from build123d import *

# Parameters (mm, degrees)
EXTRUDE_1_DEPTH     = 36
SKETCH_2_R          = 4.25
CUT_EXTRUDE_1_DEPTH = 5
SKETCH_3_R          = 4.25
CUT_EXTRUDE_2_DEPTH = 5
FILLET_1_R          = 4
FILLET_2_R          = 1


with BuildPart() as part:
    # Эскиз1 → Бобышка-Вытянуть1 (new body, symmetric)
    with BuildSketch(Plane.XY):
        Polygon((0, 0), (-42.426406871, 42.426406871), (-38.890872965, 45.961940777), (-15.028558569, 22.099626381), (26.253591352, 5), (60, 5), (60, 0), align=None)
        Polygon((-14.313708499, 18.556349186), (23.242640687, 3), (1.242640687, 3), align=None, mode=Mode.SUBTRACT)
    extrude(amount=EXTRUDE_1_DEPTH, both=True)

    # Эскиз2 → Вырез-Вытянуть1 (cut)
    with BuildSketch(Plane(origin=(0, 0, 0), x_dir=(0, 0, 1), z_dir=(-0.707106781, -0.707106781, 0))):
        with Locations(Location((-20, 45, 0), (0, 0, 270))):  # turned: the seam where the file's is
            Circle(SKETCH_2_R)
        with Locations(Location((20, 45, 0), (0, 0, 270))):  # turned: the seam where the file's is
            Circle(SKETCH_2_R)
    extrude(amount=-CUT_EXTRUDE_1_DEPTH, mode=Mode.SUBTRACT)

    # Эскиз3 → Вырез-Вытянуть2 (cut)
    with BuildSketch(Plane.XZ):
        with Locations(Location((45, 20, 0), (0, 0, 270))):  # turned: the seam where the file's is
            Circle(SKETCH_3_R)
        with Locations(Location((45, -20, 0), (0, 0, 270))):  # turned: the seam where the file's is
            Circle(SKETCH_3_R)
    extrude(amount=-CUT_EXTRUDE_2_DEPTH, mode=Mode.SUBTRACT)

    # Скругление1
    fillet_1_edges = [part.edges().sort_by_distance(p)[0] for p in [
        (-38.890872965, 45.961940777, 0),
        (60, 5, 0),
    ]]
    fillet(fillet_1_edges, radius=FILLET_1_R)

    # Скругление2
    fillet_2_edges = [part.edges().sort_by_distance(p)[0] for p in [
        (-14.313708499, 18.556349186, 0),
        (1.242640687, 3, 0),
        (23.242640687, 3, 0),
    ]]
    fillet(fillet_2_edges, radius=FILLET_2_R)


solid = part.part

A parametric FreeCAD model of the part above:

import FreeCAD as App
import Part
import Sketcher

V = App.Vector
Q = App.Units.Quantity


def edges_at(feature, points):
    """Names of the edges that pass closest to the given points."""
    edges = feature.Shape.Edges
    near = lambda p: min(range(len(edges)), key=lambda i: edges[i].distToShape(Part.Vertex(*p))[0])
    return sorted({f"Edge{near(p) + 1}" for p in points})


def add_polygon(sketch, points):
    """Adds a closed chain of lines whose ends are joined by coincident constraints."""
    first, n = sketch.GeometryCount, len(points)
    for a, b in zip(points, points[1:] + points[:1]):
        sketch.addGeometry(Part.LineSegment(App.Vector(*a, 0), App.Vector(*b, 0)), False)
    for i in range(n):
        sketch.addConstraint(Sketcher.Constraint("Coincident", first + i, 2, first + (i + 1) % n, 1))

doc = App.newDocument("Part")
body = doc.addObject("PartDesign::Body", "Body")

# Sketch on XY plane
sketch1 = body.newObject("Sketcher::SketchObject", "Sketch")
sketch1.AttachmentSupport = (doc.getObject("XY_Plane"), [""])
sketch1.MapMode = "FlatFace"
add_polygon(sketch1, [(-42, 42), (0, 0), (60, 0), (60, 5), (26, 5), (-15, 22), (-39, 46)])  # lines 0-6
add_polygon(sketch1, [(-14, 19), (23, 3), (1, 3)])  # lines 7-9
sketch1.addConstraint([
    Sketcher.Constraint("Horizontal", 1),
    Sketcher.Constraint("Vertical", 2),
    Sketcher.Constraint("Horizontal", 3),
    Sketcher.Constraint("Horizontal", 8),
    Sketcher.Constraint("Coincident", 0, 2, -1, 1),
    Sketcher.Constraint("Parallel", 0, 5),
    Sketcher.Constraint("Perpendicular", 5, 6),
    Sketcher.Constraint("Parallel", 4, 7),
    Sketcher.Constraint("Perpendicular", 6, 9),
    Sketcher.Constraint("DistanceX", 1, 1, 1, 2, Q("60 mm")),
    Sketcher.Constraint("DistanceX", 8, 2, 8, 1, Q("22 mm")),
    Sketcher.Constraint("DistanceY", 2, 1, 2, 2, Q("5 mm")),
    Sketcher.Constraint("Angle", 0, Q("-45 deg")),
    Sketcher.Constraint("Distance", 0, Q("60 mm")),
    Sketcher.Constraint("Distance", 6, Q("5 mm")),
    Sketcher.Constraint("Distance", 9, Q("22 mm")),
    Sketcher.Constraint("DistanceY", -1, 1, 7, 2, Q("3 mm")),
    Sketcher.Constraint("DistanceX", 6, 2, 3, 2, Q("68.679998 mm")),
    Sketcher.Constraint("DistanceX", 4, 2, 7, 2, Q("38.271199 mm")),
])
pad1 = body.newObject("PartDesign::Pad", "Pad")
pad1.Profile = sketch1
pad1.Length = 72
pad1.Midplane = True

# Sketch on an angled plane
sketch2 = body.newObject("Sketcher::SketchObject", "Sketch001")
sketch2.Placement = App.Placement(V(0, 0, 0), App.Rotation(V(0, 0, 1), V(-0.707106781, 0.707106781, 0), V(-0.707106781, -0.707106781, 0), "ZXY"))
sketch2.addGeometry([
    Part.Circle(V(-20, 45, 0), V(0, 0, 1), 4.2),
    Part.Circle(V(20, 45, 0), V(0, 0, 1), 4.2),
], False)
sketch2.addConstraint([
    Sketcher.Constraint("Equal", 0, 1),
    Sketcher.Constraint("Symmetric", 0, 3, 1, 3, -2),
    Sketcher.Constraint("Diameter", 0, Q("8.5 mm")),
    Sketcher.Constraint("DistanceX", 0, 3, -1, 1, Q("20 mm")),
    Sketcher.Constraint("DistanceY", -1, 1, 0, 3, Q("45 mm")),
])
pocket1 = body.newObject("PartDesign::Pocket", "Pocket")
pocket1.Profile = sketch2
pocket1.Length = 5

# Sketch on XZ plane
sketch3 = body.newObject("Sketcher::SketchObject", "Sketch002")
sketch3.AttachmentSupport = (doc.getObject("XZ_Plane"), [""])
sketch3.MapMode = "FlatFace"
sketch3.addGeometry([
    Part.Circle(V(45, 20, 0), V(0, 0, 1), 4.2),
    Part.Circle(V(45, -20, 0), V(0, 0, 1), 4.2),
], False)
sketch3.addConstraint([
    Sketcher.Constraint("Equal", 0, 1),
    Sketcher.Constraint("Symmetric", 0, 3, 1, 3, -1),
    Sketcher.Constraint("Diameter", 0, Q("8.5 mm")),
    Sketcher.Constraint("DistanceX", -1, 1, 0, 3, Q("45 mm")),
    Sketcher.Constraint("DistanceY", -1, 1, 0, 3, Q("20 mm")),
])
pocket2 = body.newObject("PartDesign::Pocket", "Pocket001")
pocket2.Profile = sketch3
pocket2.Length = 5
doc.recompute()

fillet = body.newObject("PartDesign::Fillet", "Fillet")
fillet.Base = (pocket2, edges_at(pocket2, [(-38.891, 45.962, 0), (60, 5, 0)]))
fillet.Radius = 4
doc.recompute()

fillet2 = body.newObject("PartDesign::Fillet", "Fillet001")
fillet2.Base = (fillet, edges_at(fillet, [(-14.314, 18.556, 0), (1.243, 3, 0), (23.243, 3, 0)]))
fillet2.Radius = 1

doc.recompute()
